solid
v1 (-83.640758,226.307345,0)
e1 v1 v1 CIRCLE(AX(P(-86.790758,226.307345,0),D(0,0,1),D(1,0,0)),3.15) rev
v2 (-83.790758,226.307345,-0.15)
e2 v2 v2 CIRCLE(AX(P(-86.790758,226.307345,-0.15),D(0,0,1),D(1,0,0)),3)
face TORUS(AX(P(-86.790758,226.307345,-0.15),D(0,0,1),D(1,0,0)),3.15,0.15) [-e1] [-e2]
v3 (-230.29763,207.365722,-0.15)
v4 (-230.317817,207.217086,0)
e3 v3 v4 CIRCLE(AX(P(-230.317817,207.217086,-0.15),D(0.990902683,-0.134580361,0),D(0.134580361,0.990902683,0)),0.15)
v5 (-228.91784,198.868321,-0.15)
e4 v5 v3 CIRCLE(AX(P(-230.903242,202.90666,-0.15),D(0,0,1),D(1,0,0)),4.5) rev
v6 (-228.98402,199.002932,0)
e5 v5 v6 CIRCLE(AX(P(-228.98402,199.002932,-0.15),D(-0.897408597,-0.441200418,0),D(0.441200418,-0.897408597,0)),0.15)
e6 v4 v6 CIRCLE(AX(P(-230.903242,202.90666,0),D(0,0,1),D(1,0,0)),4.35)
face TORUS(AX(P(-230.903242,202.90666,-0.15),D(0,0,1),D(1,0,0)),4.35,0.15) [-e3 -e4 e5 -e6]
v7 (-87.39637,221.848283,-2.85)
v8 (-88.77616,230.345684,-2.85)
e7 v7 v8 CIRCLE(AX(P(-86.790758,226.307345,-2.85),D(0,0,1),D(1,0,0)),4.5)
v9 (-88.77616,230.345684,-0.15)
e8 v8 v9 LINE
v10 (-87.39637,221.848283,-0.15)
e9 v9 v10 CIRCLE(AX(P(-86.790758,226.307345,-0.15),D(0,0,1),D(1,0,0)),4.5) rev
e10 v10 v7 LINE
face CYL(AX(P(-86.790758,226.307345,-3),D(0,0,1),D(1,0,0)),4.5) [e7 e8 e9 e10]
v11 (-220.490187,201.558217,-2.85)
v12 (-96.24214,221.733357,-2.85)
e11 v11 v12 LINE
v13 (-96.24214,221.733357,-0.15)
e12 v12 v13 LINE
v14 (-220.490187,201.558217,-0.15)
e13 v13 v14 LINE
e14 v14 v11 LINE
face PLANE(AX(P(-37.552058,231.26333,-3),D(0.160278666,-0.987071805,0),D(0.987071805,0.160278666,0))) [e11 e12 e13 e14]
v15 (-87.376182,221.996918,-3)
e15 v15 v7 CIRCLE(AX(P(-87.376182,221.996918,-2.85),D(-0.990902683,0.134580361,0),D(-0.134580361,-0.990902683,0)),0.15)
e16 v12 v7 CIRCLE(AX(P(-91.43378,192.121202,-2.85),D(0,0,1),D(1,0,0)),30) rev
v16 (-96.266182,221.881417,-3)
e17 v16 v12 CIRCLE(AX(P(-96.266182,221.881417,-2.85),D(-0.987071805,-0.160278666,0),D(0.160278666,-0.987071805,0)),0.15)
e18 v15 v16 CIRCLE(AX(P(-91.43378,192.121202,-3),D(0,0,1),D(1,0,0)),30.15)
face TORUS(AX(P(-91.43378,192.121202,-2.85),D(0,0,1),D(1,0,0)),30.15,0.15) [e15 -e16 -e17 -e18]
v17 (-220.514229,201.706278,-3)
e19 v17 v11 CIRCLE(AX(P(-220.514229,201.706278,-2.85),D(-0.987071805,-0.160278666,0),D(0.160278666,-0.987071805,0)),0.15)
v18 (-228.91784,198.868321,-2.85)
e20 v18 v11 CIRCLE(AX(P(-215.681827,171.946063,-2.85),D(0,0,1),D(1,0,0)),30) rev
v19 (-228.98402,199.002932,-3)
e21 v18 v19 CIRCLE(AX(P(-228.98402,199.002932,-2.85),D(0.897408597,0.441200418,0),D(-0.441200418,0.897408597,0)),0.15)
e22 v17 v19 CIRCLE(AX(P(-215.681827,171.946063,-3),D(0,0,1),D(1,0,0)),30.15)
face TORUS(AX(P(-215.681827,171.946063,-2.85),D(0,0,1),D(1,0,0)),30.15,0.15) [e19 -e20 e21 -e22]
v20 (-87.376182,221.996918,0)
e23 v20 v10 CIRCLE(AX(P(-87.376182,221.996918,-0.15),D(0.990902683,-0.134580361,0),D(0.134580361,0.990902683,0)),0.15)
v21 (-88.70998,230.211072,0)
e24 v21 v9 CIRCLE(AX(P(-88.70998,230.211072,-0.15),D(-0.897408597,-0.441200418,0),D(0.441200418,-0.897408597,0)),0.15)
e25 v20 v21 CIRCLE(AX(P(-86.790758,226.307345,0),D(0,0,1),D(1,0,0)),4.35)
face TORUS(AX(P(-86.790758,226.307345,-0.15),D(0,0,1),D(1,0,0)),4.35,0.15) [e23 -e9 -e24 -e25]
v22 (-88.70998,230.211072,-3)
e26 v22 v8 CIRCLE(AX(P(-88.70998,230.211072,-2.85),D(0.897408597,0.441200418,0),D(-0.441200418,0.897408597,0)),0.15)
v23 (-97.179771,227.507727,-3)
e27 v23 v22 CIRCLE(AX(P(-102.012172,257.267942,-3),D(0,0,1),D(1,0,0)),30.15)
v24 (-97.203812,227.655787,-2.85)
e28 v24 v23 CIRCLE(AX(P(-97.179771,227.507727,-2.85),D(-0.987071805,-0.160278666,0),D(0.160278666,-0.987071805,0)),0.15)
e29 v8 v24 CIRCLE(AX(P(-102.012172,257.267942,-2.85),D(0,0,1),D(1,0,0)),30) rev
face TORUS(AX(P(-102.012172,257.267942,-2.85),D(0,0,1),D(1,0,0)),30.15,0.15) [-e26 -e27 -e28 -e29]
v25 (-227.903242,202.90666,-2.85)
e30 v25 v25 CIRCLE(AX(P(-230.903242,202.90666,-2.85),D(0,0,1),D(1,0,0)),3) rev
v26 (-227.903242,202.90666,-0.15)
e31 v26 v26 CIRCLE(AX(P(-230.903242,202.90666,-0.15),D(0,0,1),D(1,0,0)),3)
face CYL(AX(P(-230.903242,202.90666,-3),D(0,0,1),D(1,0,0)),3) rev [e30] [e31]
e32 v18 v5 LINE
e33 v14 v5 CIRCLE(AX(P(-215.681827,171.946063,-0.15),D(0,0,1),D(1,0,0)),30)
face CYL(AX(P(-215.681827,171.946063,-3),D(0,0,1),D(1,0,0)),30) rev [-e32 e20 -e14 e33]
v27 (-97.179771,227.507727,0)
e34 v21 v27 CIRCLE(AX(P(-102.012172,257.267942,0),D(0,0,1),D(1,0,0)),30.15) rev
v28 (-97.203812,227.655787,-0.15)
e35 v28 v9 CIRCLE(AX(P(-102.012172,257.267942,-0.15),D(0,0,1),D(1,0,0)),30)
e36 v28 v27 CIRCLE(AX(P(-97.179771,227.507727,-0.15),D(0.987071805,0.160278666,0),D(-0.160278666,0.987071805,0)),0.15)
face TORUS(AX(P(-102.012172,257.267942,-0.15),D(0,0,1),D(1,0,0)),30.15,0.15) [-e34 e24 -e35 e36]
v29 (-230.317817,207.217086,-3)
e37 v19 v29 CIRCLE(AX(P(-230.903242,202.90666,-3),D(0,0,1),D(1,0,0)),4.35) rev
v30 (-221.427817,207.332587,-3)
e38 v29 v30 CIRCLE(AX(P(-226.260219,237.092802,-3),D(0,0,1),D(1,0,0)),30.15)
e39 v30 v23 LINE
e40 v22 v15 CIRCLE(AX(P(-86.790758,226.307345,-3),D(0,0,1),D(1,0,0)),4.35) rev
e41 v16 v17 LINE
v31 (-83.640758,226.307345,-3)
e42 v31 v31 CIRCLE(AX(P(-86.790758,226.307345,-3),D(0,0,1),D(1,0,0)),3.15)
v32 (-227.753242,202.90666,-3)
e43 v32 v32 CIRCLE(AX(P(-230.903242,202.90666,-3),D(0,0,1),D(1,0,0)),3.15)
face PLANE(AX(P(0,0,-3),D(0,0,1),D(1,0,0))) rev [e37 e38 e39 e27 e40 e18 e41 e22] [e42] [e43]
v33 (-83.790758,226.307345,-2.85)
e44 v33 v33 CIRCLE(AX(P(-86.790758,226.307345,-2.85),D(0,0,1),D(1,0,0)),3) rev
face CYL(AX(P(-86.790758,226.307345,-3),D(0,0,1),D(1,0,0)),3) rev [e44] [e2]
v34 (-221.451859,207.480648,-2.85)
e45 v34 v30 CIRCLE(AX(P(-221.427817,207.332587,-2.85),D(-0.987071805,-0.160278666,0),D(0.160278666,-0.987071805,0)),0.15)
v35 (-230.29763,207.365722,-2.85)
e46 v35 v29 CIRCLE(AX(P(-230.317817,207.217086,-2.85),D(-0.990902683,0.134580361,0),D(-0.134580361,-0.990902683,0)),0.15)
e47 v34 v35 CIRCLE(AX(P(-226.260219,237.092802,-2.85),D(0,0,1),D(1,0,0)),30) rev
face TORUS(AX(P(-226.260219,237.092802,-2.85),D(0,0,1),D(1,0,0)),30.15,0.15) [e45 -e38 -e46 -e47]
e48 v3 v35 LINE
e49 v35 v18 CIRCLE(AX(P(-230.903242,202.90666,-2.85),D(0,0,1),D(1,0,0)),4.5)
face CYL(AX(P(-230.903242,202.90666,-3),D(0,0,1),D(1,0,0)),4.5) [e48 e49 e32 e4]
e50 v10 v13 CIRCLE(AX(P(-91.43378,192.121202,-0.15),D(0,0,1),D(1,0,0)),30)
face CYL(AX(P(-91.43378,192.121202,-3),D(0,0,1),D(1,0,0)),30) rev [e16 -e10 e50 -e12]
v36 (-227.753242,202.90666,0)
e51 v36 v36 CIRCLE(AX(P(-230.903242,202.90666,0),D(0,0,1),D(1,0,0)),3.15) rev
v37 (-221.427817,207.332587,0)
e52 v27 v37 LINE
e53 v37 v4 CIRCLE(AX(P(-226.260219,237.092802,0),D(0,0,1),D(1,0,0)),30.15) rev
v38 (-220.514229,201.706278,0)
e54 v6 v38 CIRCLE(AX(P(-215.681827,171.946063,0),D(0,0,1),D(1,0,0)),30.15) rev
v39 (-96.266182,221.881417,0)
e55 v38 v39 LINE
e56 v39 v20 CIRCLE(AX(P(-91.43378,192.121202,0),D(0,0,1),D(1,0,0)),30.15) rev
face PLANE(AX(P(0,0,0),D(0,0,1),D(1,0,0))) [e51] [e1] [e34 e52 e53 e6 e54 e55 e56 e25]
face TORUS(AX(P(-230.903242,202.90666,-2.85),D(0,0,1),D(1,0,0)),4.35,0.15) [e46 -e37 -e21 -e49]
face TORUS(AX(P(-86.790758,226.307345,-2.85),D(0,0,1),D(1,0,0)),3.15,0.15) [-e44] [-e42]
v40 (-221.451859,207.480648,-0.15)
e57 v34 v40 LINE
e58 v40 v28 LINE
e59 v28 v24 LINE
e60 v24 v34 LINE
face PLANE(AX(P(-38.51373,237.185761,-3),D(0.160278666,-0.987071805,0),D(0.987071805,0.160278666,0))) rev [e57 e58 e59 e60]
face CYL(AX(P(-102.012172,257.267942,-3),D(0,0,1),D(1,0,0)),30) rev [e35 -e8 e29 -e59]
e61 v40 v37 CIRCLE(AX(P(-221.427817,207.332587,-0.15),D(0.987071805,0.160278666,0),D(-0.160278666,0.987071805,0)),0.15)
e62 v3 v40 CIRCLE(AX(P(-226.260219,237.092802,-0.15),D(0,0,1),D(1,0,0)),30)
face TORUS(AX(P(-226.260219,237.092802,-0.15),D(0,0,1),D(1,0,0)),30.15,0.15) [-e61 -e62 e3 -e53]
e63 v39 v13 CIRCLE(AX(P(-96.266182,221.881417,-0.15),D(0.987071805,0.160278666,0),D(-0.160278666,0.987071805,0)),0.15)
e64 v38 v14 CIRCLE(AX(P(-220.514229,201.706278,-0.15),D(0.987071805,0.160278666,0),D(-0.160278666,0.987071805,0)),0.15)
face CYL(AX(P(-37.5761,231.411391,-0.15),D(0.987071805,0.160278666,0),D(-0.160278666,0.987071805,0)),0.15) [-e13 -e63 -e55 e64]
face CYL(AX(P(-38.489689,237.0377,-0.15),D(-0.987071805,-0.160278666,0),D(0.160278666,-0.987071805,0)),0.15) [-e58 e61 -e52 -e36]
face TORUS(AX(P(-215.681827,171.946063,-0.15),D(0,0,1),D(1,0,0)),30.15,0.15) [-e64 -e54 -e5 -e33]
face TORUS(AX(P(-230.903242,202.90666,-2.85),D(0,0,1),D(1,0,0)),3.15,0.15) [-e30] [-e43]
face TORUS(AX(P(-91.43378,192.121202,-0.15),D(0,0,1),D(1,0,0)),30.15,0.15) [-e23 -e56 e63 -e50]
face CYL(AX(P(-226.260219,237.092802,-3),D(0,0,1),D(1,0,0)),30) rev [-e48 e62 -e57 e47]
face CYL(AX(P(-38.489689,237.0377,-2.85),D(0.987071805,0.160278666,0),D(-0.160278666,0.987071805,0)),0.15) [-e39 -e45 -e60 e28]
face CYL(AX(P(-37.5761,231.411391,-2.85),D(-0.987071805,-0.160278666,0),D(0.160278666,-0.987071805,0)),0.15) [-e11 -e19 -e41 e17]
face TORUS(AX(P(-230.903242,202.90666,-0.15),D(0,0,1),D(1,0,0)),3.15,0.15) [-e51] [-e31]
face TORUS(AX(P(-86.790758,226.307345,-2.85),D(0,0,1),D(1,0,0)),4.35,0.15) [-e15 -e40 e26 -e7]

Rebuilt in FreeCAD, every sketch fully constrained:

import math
import FreeCAD as App
import Part
import Sketcher
from FreeCAD import Vector


def edges_at(feature, points):
    """Names of the edges that pass closest to the given points."""
    edges = feature.Shape.Edges
    near = lambda p: min(range(len(edges)), key=lambda i: edges[i].distToShape(Part.Vertex(*p))[0])
    return sorted({f"Edge{near(p) + 1}" for p in points})

doc = App.newDocument("Part")
body = doc.addObject("PartDesign::Body", "Body")

# Sketch on XY plane
sketch1 = body.newObject("Sketcher::SketchObject", "Sketch")
sketch1.AttachmentSupport = (doc.getObject("XY_Plane"), [""])
sketch1.MapMode = "FlatFace"
sketch1.addGeometry(Part.ArcOfCircle(Part.Circle(Vector(-230.903242, 202.90666, 0), Vector(0, 0, 1), 4.5), math.radians(51.033386), math.radians(327.412756)), False)
sketch1.addGeometry(Part.LineSegment(Vector(-227.111666, 200.483035, 0), Vector(-89.620661, 222.808539, 0)), False)
sketch1.addGeometry(Part.ArcOfCircle(Part.Circle(Vector(-86.790758, 226.307345, 0), Vector(0, 0, 1), 4.5), math.radians(-128.966614), math.radians(0)), False)
sketch1.addGeometry(Part.ArcOfCircle(Part.Circle(Vector(-86.790758, 226.307345, 0), Vector(0, 0, 1), 4.5), math.radians(0), math.radians(147.412756)), False)
sketch1.addGeometry(Part.LineSegment(Vector(-90.582333, 228.730969, 0), Vector(-228.073338, 206.405466, 0)), False)
sketch1.addGeometry(Part.ArcOfCircle(Part.Circle(Vector(-230.903242, 202.90666, 0), Vector(0, 0, 1), 3), math.radians(99.223071), math.radians(279.223071)), False)
sketch1.addGeometry(Part.ArcOfCircle(Part.Circle(Vector(-230.903242, 202.90666, 0), Vector(0, 0, 1), 3), math.radians(-80.776929), math.radians(99.223071)), False)
sketch1.addGeometry(Part.Circle(Vector(-86.790758, 226.307345, 0), Vector(0, 0, 1), 3), False)
sketch1.addConstraint(Sketcher.Constraint("Coincident", 0, 2, 1, 1))
sketch1.addConstraint(Sketcher.Constraint("Coincident", 1, 2, 2, 1))
sketch1.addConstraint(Sketcher.Constraint("Tangent", 2, 2, 3, 1))
sketch1.addConstraint(Sketcher.Constraint("Coincident", 3, 2, 4, 1))
sketch1.addConstraint(Sketcher.Constraint("Coincident", 4, 2, 0, 1))
sketch1.addConstraint(Sketcher.Constraint("Tangent", 5, 1, 6, 2))
sketch1.addConstraint(Sketcher.Constraint("Coincident", 6, 1, 5, 2))
sketch1.addConstraint(Sketcher.Constraint("Coincident", 5, 3, 0, 3))
sketch1.addConstraint(Sketcher.Constraint("Coincident", 7, 3, 2, 3))
sketch1.addConstraint(Sketcher.Constraint("Equal", 0, 2))
sketch1.addConstraint(Sketcher.Constraint("Equal", 2, 3))
sketch1.addConstraint(Sketcher.Constraint("Equal", 6, 7))
sketch1.addConstraint(Sketcher.Constraint("Parallel", 1, 4))
sketch1.addConstraint(Sketcher.Constraint("Horizontal", 7, 3, 2, 2))
sketch1.addConstraint(Sketcher.Constraint("Equal", 1, 4))
sketch1.addConstraint(Sketcher.Constraint("Diameter", 7, 6.0))
sketch1.addConstraint(Sketcher.Constraint("Radius", 0, 4.5))
sketch1.addConstraint(Sketcher.Constraint("DistanceX", 0, 3, -1, 1, 230.903242))
sketch1.addConstraint(Sketcher.Constraint("DistanceY", -1, 1, 0, 3, 202.90666))
sketch1.addConstraint(Sketcher.Constraint("DistanceX", 1, 2, -1, 1, 89.620661))
sketch1.addConstraint(Sketcher.Constraint("DistanceY", -1, 1, 1, 2, 222.808539))
sketch1.addConstraint(Sketcher.Constraint("DistanceY", -1, 1, 3, 2, 228.730969))
sketch1.addConstraint(Sketcher.Constraint("DistanceX", 4, 2, -1, 1, 228.073338))
sketch1.addConstraint(Sketcher.Constraint("DistanceX", 5, 1, 4, 2, 3.310739))
sketch1.addConstraint(Sketcher.Constraint("DistanceX", 6, 1, 0, 2, 3.310739))
pad1 = body.newObject("PartDesign::Pad", "Pad")
pad1.Profile = sketch1
pad1.Length = 3
pad1.Reversed = True
doc.recompute()

fillet = body.newObject("PartDesign::Fillet", "Fillet")
fillet.Base = (pad1, edges_at(pad1, [
    (-228.073, 206.405, -1.5),
    (-90.582, 228.731, -1.5),
    (-89.621, 222.809, -1.5),
    (-227.112, 200.483, -1.5),
]))
fillet.Radius = 30
doc.recompute()

fillet2 = body.newObject("PartDesign::Fillet", "Fillet001")
fillet2.Base = (fillet, edges_at(fillet, [
    (-86.31, 223.346, 0),
    (-84.412, 230.127, 0),
    (-84.412, 230.127, -3),
    (-159.328, 217.568, 0),
    (-159.328, 217.568, -3),
    (-158.366, 211.646, 0),
    (-158.366, 211.646, -3),
    (-235.345, 202.185, 0),
    (-235.345, 202.185, -3),
    (-92.89, 228.688, 0),
    (-92.89, 228.688, -3),
    (-91.824, 222.119, 0),
    (-233.864, 202.426, -3),
    (-91.824, 222.119, -3),
    (-224.804, 200.526, 0),
    (-224.804, 200.526, -3),
    (-225.87, 207.095, 0),
    (-225.87, 207.095, -3),
    (-86.31, 223.346, -3),
    (-233.864, 202.426, 0),
]))
fillet2.Radius = 0.15

doc.recompute()
